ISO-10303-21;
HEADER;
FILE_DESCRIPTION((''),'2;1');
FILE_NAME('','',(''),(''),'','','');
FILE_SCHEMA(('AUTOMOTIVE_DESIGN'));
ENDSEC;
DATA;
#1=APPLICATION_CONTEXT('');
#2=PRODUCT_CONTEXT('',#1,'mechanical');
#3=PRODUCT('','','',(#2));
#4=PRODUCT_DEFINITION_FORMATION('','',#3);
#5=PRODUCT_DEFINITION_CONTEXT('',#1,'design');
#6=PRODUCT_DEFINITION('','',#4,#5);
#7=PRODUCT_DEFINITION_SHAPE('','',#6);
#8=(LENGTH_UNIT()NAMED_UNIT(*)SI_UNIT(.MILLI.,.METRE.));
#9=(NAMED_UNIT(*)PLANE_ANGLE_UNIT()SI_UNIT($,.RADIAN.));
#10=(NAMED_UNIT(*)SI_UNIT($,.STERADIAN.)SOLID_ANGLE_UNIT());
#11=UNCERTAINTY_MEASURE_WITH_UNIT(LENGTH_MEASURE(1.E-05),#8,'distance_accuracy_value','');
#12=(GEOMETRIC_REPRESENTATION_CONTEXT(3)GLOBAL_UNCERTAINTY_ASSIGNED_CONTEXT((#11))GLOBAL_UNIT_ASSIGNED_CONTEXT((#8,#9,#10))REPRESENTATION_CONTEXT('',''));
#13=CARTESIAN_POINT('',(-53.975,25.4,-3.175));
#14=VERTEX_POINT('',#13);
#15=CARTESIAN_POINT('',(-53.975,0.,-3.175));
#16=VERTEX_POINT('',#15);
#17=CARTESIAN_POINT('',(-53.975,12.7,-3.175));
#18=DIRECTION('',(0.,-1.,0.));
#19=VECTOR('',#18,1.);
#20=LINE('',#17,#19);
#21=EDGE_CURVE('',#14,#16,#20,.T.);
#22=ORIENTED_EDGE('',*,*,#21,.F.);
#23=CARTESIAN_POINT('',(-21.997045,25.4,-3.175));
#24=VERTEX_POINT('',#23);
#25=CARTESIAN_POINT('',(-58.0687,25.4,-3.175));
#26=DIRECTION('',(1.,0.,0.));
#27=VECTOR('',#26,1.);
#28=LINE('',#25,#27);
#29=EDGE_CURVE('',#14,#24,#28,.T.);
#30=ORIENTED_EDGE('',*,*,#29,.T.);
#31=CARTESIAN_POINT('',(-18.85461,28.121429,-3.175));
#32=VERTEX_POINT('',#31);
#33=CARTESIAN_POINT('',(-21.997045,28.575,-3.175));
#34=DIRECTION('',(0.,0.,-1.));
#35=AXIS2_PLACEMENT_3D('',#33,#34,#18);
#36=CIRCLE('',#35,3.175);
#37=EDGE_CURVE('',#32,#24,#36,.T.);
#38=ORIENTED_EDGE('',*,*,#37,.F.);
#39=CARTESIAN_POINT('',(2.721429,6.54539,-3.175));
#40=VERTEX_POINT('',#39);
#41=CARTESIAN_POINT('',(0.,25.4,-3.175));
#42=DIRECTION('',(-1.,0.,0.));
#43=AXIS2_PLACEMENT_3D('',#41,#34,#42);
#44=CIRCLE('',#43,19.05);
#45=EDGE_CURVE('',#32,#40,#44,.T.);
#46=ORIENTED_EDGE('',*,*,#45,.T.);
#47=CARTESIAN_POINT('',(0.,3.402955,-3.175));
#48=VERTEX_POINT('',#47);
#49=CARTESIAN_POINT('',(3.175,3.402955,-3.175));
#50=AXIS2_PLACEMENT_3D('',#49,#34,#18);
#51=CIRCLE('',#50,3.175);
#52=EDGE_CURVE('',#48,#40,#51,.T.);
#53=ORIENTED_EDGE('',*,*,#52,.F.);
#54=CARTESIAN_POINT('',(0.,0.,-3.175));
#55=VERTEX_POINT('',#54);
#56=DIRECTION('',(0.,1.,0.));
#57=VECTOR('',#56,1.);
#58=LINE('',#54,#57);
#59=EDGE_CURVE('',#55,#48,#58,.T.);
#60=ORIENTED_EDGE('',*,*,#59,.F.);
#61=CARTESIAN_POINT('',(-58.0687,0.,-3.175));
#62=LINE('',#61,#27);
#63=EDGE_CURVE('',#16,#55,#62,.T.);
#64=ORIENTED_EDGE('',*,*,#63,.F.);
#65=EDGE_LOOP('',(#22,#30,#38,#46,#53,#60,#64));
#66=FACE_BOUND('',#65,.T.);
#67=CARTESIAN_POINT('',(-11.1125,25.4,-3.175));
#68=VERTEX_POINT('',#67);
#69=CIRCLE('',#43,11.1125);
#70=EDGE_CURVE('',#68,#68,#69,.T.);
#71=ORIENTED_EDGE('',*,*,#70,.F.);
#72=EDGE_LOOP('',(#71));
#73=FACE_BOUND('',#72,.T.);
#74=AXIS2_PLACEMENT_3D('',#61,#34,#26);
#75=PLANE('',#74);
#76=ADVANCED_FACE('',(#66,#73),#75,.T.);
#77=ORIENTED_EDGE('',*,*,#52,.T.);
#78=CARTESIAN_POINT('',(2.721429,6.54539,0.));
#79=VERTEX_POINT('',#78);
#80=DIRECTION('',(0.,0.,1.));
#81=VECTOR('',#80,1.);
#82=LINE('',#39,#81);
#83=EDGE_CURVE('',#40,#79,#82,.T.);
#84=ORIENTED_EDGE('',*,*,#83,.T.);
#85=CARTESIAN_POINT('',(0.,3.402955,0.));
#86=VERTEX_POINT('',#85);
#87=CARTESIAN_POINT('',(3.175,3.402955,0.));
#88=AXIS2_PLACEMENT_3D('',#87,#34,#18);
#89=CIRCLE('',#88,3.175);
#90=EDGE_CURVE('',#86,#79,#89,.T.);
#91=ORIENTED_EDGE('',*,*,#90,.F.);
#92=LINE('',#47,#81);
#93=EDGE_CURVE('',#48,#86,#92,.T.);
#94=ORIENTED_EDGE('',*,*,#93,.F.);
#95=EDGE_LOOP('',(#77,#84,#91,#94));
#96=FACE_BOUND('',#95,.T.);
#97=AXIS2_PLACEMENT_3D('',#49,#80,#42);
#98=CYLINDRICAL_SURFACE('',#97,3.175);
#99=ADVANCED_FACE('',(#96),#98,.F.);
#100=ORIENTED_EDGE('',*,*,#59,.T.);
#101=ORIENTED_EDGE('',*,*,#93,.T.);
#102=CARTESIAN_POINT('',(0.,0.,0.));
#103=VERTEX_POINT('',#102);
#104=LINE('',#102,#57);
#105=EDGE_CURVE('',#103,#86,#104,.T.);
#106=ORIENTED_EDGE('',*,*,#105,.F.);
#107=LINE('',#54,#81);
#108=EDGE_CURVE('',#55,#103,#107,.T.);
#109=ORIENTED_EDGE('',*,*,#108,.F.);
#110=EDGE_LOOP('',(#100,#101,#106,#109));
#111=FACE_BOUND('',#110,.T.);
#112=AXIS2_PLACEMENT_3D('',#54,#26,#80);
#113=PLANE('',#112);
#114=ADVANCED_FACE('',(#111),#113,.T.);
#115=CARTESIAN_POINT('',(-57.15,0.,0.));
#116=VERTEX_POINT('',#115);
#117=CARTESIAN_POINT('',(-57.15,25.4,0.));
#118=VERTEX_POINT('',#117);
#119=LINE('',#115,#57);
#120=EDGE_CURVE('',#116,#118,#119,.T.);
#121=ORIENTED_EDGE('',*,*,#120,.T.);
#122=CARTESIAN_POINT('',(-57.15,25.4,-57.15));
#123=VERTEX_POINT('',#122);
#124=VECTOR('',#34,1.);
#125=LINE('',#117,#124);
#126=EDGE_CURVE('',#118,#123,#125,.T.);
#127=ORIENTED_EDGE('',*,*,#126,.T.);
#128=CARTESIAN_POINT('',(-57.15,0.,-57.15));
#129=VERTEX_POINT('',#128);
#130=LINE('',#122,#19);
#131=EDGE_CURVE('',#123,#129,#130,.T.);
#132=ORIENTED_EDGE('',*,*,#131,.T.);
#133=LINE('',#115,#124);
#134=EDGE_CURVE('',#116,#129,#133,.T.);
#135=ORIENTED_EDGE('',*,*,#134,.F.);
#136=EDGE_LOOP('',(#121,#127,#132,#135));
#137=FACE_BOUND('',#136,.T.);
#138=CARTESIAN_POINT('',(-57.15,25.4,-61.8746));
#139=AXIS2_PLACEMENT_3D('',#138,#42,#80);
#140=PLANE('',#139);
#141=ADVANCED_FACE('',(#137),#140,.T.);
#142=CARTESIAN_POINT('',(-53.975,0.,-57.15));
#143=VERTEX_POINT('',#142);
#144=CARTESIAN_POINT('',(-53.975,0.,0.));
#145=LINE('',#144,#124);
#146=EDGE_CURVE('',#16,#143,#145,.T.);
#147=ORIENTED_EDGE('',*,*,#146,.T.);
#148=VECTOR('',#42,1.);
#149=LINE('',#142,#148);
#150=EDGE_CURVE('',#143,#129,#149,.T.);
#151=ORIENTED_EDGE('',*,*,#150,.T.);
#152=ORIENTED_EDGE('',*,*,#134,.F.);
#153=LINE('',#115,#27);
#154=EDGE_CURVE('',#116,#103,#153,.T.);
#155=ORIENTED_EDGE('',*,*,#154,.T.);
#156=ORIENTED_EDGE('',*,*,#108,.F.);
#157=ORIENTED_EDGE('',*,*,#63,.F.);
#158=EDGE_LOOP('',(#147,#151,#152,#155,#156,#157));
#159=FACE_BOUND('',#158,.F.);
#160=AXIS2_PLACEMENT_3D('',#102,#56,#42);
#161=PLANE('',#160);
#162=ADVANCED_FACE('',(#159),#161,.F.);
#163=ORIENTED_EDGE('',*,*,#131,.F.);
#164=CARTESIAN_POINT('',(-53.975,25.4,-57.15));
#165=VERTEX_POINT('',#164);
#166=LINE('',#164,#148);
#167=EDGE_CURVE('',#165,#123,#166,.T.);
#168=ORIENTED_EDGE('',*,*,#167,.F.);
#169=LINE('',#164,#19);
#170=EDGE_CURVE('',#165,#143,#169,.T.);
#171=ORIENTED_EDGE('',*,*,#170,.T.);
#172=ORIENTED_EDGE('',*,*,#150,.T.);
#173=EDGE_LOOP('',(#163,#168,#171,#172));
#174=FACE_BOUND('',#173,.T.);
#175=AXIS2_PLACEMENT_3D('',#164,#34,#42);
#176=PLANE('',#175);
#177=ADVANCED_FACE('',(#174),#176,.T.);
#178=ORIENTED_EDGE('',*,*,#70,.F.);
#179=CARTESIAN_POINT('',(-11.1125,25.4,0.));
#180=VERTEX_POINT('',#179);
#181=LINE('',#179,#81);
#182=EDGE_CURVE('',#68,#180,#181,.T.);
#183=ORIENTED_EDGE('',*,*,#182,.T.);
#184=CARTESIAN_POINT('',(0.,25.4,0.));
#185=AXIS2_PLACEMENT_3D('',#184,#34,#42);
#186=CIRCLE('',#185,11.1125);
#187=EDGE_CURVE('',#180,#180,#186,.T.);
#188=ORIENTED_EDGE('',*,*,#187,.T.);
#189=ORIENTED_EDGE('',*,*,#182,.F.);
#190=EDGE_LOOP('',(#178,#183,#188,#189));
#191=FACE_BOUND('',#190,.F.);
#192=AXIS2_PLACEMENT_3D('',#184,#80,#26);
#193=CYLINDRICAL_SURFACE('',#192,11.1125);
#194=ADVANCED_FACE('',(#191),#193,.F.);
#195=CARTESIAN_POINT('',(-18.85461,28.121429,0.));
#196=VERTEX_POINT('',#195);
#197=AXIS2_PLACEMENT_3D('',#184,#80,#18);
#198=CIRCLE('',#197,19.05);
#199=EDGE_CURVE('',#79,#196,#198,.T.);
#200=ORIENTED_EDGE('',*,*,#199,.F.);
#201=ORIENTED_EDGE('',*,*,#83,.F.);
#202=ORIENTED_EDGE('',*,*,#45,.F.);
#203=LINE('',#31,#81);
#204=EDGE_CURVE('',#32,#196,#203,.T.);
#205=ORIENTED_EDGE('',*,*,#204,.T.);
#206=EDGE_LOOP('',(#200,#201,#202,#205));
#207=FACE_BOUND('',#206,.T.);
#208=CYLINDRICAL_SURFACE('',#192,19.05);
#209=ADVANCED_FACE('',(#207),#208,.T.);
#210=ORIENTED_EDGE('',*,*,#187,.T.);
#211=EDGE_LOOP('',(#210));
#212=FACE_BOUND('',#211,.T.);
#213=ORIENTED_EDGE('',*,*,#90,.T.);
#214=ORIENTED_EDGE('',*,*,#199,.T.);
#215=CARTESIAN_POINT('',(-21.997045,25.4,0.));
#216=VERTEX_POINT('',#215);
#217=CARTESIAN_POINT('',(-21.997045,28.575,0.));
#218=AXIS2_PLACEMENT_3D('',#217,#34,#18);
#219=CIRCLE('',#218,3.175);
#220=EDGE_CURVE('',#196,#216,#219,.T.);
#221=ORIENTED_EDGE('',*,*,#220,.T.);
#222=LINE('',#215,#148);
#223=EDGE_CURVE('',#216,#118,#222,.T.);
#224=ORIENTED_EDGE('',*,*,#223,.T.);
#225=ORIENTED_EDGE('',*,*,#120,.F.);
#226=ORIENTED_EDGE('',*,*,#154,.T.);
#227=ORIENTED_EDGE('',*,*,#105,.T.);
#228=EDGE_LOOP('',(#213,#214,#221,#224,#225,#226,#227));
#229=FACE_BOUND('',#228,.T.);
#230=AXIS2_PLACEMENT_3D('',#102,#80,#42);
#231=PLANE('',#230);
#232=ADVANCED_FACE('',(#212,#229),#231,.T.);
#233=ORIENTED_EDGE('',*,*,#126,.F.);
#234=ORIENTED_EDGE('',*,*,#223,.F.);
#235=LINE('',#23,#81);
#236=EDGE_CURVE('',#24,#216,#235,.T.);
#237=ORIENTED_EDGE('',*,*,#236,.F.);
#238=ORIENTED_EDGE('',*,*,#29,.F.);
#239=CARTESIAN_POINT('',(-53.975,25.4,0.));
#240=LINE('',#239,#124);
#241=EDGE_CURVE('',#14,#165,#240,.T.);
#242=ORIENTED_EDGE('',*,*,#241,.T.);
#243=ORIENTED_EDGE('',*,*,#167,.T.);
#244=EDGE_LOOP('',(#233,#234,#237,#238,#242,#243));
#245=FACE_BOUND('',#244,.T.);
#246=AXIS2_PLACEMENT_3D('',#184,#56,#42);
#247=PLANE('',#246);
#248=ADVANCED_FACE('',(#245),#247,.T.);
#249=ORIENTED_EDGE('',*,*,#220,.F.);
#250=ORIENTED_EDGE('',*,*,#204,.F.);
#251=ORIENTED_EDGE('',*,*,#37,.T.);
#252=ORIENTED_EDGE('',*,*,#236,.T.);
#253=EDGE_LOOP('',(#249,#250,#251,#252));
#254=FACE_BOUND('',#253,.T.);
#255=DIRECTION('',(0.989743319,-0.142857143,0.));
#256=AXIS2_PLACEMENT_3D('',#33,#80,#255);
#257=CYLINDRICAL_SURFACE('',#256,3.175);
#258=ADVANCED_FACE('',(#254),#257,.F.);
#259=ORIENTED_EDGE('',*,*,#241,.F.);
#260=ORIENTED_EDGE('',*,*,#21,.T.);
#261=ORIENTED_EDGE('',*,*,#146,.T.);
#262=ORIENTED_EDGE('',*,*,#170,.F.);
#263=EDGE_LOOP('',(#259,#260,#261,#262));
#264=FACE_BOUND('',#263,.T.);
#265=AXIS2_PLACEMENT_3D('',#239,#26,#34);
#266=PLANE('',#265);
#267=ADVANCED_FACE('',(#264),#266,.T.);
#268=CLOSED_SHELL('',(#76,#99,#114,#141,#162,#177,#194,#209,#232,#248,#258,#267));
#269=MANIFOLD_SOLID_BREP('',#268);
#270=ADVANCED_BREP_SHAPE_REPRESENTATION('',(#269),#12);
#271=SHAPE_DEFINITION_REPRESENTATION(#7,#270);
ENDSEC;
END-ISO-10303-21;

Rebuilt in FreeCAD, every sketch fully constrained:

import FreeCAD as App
import Part
import Sketcher
from FreeCAD import Vector
Q = App.Units.Quantity


def edges_at(feature, points):
    """Names of the edges that pass closest to the given points."""
    edges = feature.Shape.Edges
    near = lambda p: min(range(len(edges)), key=lambda i: edges[i].distToShape(Part.Vertex(*p))[0])
    return sorted({f"Edge{near(p) + 1}" for p in points})


def add_polygon(sketch, points):
    """Adds a closed chain of lines whose ends are joined by coincident constraints."""
    first, n = sketch.GeometryCount, len(points)
    for a, b in zip(points, points[1:] + points[:1]):
        sketch.addGeometry(Part.LineSegment(App.Vector(*a, 0), App.Vector(*b, 0)), False)
    for i in range(n):
        sketch.addConstraint(Sketcher.Constraint("Coincident", first + i, 2, first + (i + 1) % n, 1))

doc = App.newDocument("Part")
body = doc.addObject("PartDesign::Body", "Body")

sketch1 = doc.addObject("Sketcher::SketchObject", "Sketch")
body.addObject(sketch1)
sketch1.AttachmentSupport = (doc.XZ_Plane, [""])
sketch1.MapMode = "FlatFace"
add_polygon(sketch1, [(-57.1, 0), (0, 0), (0, -3.2), (-58.1, -3.2), (-112.5, 31.2), (-110.8, 33.9)])
sketch1.addConstraint([
    Sketcher.Constraint("Horizontal", 0),
    Sketcher.Constraint("Vertical", 1),
    Sketcher.Constraint("Horizontal", 2),
    Sketcher.Constraint("Coincident", 0, 2, -1, 1),
    Sketcher.Constraint("Perpendicular", 3, 4),
    Sketcher.Constraint("Perpendicular", 4, 5),
    Sketcher.Constraint("Distance", 5, Q("2.5 in")),
    Sketcher.Constraint("DistanceX", 0, 1, 0, 2, Q("2.25 in")),
    Sketcher.Constraint("DistanceY", 1, 2, 1, 1, Q("0.125 in")),
    Sketcher.Constraint("Distance", 4, Q("0.125 in")),
    Sketcher.Constraint("DistanceX", 2, 2, 2, 1, Q("58.0687 mm")),
])
pad1 = doc.addObject("PartDesign::Pad", "Pad")
body.addObject(pad1)
pad1.Profile = sketch1
pad1.Length = Q("1 in")
pad1.Reversed = True

sketch2 = doc.addObject("Sketcher::SketchObject", "Sketch001")
body.addObject(sketch2)
sketch2.AttachmentSupport = (doc.XY_Plane, [""])
sketch2.MapMode = "FlatFace"
sketch2.addGeometry([
    Part.Circle(Vector(0, 25, 0), Vector(0, 0, 1), 19),
    Part.Circle(Vector(0, 25, 0), Vector(0, 0, 1), 11),
], False)
sketch2.addConstraint([
    Sketcher.Constraint("Coincident", 1, 3, 0, 3),
    Sketcher.Constraint("PointOnObject", 0, 3, -2),
    Sketcher.Constraint("Diameter", 0, Q("1.5 in")),
    Sketcher.Constraint("Diameter", 1, Q("0.875 in")),
    Sketcher.Constraint("DistanceY", -1, 1, 0, 3, Q("1 in")),
])
pad2 = doc.addObject("PartDesign::Pad", "Pad001")
body.addObject(pad2)
pad2.Profile = sketch2
pad2.Length = Q("0.125 in")
pad2.Reversed = True

sketch3 = doc.addObject("Sketcher::SketchObject", "Sketch002")
body.addObject(sketch3)
sketch3.AttachmentSupport = (doc.XY_Plane, [""])
sketch3.MapMode = "FlatFace"
sketch3.addGeometry(Part.Circle(Vector(0, 25, 0), Vector(0, 0, 1), 11), False)
sketch3.addConstraint([
    Sketcher.Constraint("PointOnObject", 0, 3, -2),
    Sketcher.Constraint("Diameter", 0, Q("0.875 in")),
    Sketcher.Constraint("DistanceY", -1, 1, 0, 3, Q("1 in")),
])
pocket1 = doc.addObject("PartDesign::Pocket", "Pocket")
body.addObject(pocket1)
pocket1.Profile = sketch3
pocket1.Length = Q("0.125 in")
doc.recompute()

fillet = doc.addObject("PartDesign::Fillet", "Fillet")
body.addObject(fillet)
fillet.Base = (pocket1, edges_at(pocket1, [(0, 6.35, -1.587), (-19.05, 25.4, -1.587)]))
fillet.Radius = Q("0.125 in")

sketch4 = doc.addObject("Sketcher::SketchObject", "Sketch003")
body.addObject(sketch4)
sketch4.AttachmentSupport = (doc.XZ_Plane, [""])
sketch4.MapMode = "FlatFace"
sketch4.AttachmentOffset = App.Placement(Vector(0, 0, -1 * 25.4), App.Rotation())
add_polygon(sketch4, [(-57, -62), (-136, -62), (-136, 40), (-57, 40)])
sketch4.addConstraint([
    Sketcher.Constraint("Horizontal", 0),
    Sketcher.Constraint("Vertical", 1),
    Sketcher.Constraint("Horizontal", 2),
    Sketcher.Constraint("Vertical", 3),
    Sketcher.Constraint("DistanceX", 2, 2, -1, 1, Q("2.25 in")),
    Sketcher.Constraint("DistanceY", 0, 2, -1, 1, Q("2.436 in")),
    Sketcher.Constraint("DistanceX", 0, 2, 0, 1, Q("79.341 mm")),
    Sketcher.Constraint("DistanceY", 1, 1, 1, 2, Q("102.2563 mm")),
])
pocket2 = doc.addObject("PartDesign::Pocket", "Pocket001")
body.addObject(pocket2)
pocket2.Profile = sketch4
pocket2.Length = Q("1.25 in")
pocket2.Reversed = True

sketch5 = doc.addObject("Sketcher::SketchObject", "Sketch004")
body.addObject(sketch5)
sketch5.AttachmentSupport = (doc.XZ_Plane, [""])
sketch5.MapMode = "FlatFace"
sketch5.AttachmentOffset = App.Placement(Vector(0, 0, -1 * 25.4), App.Rotation())
add_polygon(sketch5, [(-57.1, 0), (-54, 0), (-54, -57.1), (-57.1, -57.1)])
sketch5.addConstraint([
    Sketcher.Constraint("Horizontal", 0),
    Sketcher.Constraint("Vertical", 1),
    Sketcher.Constraint("Horizontal", 2),
    Sketcher.Constraint("Vertical", 3),
    Sketcher.Constraint("PointOnObject", 0, 2, -1),
    Sketcher.Constraint("DistanceY", 1, 2, 1, 1, Q("2.25 in")),
    Sketcher.Constraint("DistanceX", 0, 1, 0, 2, Q("0.125 in")),
    Sketcher.Constraint("DistanceX", 2, 2, -1, 1, Q("2.25 in")),
])
pad3 = doc.addObject("PartDesign::Pad", "Pad002")
body.addObject(pad3)
pad3.Profile = sketch5
pad3.Length = Q("1 in")

doc.recompute()
